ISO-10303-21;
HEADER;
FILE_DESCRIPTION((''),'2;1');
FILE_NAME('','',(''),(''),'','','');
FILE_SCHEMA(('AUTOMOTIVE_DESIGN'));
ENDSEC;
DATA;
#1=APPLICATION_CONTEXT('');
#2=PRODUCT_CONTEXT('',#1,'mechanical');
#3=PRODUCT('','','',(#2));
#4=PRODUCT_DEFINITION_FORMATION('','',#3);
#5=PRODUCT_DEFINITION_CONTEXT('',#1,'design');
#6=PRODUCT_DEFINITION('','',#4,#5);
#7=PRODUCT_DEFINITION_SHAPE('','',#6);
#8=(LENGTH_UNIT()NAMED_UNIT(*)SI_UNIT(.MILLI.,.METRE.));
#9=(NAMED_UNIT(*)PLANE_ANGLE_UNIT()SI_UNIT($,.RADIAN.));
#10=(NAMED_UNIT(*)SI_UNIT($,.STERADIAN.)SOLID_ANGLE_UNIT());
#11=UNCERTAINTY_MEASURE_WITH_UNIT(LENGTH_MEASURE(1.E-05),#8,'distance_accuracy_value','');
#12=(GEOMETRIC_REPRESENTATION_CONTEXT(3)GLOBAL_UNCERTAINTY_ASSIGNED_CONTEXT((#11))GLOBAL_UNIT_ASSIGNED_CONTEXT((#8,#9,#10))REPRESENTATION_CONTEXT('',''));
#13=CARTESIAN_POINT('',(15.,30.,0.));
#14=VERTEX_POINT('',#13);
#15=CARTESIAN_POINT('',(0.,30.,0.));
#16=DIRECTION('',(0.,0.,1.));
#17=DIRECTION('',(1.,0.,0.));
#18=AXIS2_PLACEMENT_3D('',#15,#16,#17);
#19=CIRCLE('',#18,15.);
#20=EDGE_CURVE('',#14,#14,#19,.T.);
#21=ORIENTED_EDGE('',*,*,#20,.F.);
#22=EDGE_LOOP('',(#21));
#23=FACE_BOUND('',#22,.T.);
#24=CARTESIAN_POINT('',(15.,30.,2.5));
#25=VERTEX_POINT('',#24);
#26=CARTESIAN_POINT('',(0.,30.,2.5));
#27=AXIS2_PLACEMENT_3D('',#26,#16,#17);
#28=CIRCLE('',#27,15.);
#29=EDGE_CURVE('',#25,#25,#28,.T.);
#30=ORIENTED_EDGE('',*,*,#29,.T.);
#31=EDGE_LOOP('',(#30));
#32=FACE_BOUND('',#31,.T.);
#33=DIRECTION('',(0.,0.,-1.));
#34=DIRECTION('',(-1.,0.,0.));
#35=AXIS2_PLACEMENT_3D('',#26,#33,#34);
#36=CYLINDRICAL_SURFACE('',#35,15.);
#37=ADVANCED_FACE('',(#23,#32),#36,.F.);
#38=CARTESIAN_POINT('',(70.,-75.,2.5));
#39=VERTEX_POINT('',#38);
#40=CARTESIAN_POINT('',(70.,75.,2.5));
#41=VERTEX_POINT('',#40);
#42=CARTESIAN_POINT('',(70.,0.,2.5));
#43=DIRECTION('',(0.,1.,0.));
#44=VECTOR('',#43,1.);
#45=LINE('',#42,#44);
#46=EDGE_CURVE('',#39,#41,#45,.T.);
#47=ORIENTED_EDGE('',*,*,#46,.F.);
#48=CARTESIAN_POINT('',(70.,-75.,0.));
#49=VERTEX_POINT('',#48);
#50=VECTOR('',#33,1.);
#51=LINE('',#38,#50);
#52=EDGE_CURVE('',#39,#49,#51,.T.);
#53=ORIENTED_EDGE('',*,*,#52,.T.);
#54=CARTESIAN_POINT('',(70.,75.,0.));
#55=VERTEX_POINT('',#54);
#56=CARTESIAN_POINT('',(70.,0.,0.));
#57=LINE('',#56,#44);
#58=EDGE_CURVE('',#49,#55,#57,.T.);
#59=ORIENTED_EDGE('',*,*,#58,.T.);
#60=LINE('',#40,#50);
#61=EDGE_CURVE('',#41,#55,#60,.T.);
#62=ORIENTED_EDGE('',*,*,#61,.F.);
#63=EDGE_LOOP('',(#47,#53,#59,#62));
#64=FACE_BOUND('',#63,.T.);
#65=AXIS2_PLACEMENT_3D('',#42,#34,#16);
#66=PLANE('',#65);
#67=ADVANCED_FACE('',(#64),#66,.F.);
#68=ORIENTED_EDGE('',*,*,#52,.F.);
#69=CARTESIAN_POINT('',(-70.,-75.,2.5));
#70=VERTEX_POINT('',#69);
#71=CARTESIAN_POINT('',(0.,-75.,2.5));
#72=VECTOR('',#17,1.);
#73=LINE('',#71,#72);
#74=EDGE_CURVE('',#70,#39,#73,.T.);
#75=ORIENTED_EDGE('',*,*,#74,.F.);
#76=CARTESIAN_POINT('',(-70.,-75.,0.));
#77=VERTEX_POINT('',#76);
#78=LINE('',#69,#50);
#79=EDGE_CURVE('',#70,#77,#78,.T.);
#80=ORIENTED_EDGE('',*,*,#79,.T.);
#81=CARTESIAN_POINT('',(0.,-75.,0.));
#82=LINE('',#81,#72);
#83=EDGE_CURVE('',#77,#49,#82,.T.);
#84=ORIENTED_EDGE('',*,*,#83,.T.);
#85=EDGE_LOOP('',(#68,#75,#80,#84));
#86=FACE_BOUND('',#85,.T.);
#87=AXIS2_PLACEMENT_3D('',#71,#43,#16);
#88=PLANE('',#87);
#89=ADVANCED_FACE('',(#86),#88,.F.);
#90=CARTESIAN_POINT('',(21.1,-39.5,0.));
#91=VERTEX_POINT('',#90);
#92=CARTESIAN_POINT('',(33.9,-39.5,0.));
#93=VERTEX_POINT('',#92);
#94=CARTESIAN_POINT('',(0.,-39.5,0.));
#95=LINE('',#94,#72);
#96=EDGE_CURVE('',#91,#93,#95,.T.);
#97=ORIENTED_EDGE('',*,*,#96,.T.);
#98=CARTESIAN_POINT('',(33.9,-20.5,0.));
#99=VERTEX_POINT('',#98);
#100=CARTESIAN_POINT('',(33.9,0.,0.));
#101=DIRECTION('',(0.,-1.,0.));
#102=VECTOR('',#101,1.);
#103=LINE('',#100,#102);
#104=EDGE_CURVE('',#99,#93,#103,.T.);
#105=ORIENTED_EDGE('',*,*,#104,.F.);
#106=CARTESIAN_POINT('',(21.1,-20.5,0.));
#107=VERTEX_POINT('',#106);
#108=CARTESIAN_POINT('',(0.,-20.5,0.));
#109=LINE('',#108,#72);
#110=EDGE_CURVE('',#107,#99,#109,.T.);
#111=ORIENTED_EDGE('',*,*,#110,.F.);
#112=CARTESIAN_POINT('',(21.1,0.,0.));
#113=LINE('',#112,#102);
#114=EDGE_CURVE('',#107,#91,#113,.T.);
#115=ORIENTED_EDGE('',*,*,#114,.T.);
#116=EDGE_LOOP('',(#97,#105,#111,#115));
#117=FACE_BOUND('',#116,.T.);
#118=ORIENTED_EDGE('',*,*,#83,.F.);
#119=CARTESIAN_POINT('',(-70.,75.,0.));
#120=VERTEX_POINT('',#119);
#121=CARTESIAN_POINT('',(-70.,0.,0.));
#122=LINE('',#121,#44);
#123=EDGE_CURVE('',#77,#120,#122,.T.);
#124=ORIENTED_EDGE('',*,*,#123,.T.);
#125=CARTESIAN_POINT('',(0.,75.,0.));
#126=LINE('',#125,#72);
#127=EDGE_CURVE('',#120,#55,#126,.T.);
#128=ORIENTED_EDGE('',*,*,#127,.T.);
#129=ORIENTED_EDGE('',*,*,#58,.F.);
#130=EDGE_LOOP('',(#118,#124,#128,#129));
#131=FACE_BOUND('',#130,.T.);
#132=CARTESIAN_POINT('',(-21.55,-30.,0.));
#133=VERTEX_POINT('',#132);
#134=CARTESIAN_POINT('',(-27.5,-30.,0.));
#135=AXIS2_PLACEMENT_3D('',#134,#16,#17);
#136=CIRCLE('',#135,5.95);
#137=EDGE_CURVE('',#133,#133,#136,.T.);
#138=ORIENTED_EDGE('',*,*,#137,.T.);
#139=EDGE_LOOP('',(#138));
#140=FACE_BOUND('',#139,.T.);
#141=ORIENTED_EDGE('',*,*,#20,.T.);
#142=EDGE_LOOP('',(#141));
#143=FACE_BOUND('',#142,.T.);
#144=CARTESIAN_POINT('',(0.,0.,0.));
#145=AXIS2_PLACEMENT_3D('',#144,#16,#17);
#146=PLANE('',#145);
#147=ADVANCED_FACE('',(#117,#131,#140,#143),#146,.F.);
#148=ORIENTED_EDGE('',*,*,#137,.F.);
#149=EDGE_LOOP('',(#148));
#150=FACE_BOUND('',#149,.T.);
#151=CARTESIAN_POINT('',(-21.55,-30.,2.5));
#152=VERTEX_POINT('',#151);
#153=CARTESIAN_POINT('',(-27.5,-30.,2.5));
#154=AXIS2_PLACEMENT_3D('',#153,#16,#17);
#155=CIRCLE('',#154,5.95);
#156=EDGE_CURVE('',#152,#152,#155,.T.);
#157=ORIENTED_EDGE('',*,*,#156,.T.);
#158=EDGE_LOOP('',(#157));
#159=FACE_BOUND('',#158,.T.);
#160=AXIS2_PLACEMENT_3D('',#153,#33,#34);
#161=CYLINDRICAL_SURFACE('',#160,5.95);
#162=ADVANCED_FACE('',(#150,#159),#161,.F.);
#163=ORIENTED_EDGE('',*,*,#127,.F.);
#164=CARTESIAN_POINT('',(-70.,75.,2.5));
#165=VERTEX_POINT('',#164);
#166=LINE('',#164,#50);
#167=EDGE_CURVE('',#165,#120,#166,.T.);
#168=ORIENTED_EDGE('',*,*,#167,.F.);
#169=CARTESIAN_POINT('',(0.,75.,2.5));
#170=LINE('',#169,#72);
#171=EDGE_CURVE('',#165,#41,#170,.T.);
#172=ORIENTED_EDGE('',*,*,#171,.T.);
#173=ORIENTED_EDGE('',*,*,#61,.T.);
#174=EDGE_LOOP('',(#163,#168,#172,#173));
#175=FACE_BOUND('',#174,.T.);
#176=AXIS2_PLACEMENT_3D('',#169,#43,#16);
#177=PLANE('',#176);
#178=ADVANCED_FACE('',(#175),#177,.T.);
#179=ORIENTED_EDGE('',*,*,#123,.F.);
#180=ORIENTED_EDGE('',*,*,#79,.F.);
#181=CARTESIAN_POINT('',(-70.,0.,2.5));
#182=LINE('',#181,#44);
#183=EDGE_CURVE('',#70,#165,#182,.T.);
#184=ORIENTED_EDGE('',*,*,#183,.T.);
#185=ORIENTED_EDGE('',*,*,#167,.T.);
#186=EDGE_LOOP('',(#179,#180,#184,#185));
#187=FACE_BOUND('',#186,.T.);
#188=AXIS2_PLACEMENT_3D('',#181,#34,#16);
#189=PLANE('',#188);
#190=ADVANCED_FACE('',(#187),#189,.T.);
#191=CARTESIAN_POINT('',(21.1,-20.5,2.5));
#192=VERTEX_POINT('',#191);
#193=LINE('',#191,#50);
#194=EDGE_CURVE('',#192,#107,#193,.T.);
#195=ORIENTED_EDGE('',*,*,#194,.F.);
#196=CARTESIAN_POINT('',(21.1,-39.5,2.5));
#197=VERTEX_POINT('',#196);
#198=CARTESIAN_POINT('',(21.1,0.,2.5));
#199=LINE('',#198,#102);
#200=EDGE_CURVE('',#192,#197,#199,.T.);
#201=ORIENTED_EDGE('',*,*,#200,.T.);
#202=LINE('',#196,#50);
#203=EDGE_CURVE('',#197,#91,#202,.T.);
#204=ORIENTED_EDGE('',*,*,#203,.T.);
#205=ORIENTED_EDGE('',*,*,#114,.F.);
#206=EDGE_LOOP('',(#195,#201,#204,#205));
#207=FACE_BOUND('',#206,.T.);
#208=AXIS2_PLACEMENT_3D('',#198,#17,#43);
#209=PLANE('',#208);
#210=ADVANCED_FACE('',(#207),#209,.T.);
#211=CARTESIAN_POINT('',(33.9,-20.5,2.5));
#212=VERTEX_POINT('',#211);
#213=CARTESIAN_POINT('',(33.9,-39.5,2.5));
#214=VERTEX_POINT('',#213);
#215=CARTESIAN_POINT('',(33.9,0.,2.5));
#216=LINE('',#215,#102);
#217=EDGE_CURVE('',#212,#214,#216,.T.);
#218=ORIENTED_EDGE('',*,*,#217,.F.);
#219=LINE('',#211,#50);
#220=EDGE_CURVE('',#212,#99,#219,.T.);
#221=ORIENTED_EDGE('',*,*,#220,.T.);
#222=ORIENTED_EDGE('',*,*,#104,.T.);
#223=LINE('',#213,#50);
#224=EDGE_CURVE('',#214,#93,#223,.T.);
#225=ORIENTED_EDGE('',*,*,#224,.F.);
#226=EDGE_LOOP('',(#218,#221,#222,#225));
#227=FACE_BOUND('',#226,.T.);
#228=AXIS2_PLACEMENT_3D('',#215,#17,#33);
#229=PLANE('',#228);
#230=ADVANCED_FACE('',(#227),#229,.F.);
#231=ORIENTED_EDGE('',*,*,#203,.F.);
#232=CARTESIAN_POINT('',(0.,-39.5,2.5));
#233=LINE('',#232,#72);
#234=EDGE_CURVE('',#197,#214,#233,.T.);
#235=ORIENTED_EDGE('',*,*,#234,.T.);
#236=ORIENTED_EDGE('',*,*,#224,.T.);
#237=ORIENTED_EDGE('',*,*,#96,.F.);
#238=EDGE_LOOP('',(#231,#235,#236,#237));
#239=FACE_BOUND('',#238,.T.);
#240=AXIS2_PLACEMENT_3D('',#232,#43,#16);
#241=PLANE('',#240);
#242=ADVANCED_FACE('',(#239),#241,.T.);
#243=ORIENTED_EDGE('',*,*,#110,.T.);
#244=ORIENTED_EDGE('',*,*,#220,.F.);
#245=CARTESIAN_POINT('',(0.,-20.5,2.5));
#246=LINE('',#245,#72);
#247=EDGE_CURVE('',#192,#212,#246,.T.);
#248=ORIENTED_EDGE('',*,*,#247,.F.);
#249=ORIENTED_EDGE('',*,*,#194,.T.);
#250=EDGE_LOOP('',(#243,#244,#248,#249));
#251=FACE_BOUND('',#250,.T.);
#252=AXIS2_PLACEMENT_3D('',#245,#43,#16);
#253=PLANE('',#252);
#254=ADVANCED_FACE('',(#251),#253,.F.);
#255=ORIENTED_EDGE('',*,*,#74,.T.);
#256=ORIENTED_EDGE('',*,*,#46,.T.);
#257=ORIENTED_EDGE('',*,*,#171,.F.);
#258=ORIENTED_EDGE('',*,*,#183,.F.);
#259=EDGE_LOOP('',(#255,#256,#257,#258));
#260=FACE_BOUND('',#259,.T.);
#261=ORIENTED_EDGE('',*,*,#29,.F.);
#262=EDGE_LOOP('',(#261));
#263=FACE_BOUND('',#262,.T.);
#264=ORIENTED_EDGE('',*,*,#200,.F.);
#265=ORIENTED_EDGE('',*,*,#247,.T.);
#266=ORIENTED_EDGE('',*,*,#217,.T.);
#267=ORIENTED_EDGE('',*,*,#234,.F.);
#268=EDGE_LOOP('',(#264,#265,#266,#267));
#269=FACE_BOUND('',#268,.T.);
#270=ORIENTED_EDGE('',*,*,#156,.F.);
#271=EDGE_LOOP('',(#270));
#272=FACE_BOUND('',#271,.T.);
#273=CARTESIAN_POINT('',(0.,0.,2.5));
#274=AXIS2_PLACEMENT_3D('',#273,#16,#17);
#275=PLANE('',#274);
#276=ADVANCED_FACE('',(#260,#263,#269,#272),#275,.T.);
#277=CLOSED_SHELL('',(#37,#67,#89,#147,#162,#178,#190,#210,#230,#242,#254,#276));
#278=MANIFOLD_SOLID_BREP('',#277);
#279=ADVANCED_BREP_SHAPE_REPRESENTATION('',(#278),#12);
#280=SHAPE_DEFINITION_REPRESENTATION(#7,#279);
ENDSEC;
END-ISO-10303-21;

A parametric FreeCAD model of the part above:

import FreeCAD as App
import Part
import Sketcher

doc = App.newDocument("Part")
params = doc.addObject("Spreadsheet::Sheet", "Params")
for row, (alias, value) in enumerate([
    ("sketch1_diameter", "30 mm"),
    ("sketch1_diameter2", "11.9 mm"),
    ("sketch1_width", "140 mm"),
    ("sketch1_height", "150 mm"),
    ("sketch1_height2", "19 mm"),
    ("pad1_length", "2.5 mm"),
], start=1):
    params.set(f"A{row}", alias)
    params.set(f"B{row}", "=" + value)
    params.setAlias(f"B{row}", alias)

body = doc.addObject("PartDesign::Body", "Body")

sketch1 = body.newObject("Sketcher::SketchObject", "Sketch")
sketch1.AttachmentSupport = (doc.getObject("XY_Plane"), [""])
sketch1.MapMode = "FlatFace"
sketch1.addGeometry(Part.LineSegment(App.Vector(-70, 75, 0), App.Vector(-70, -75, 0)), False)
sketch1.addGeometry(Part.LineSegment(App.Vector(-70, -75, 0), App.Vector(70, -75, 0)), False)
sketch1.addGeometry(Part.LineSegment(App.Vector(70, -75, 0), App.Vector(70, 75, 0)), False)
sketch1.addGeometry(Part.LineSegment(App.Vector(70, 75, 0), App.Vector(-70, 75, 0)), False)
sketch1.addGeometry(Part.Circle(App.Vector(-28, -30, 0), App.Vector(0, 0, 1), 6), False)
sketch1.addGeometry(Part.LineSegment(App.Vector(34, -40, 0), App.Vector(21, -40, 0)), False)
sketch1.addGeometry(Part.LineSegment(App.Vector(21, -40, 0), App.Vector(21, -20, 0)), False)
sketch1.addGeometry(Part.LineSegment(App.Vector(21, -20, 0), App.Vector(34, -20, 0)), False)
sketch1.addGeometry(Part.LineSegment(App.Vector(34, -20, 0), App.Vector(34, -40, 0)), False)
sketch1.addGeometry(Part.Circle(App.Vector(0, 30, 0), App.Vector(0, 0, 1), 15), False)
sketch1.addConstraint(Sketcher.Constraint("Coincident", 0, 2, 1, 1))
sketch1.addConstraint(Sketcher.Constraint("Coincident", 1, 2, 2, 1))
sketch1.addConstraint(Sketcher.Constraint("Coincident", 2, 2, 3, 1))
sketch1.addConstraint(Sketcher.Constraint("Coincident", 3, 2, 0, 1))
sketch1.addConstraint(Sketcher.Constraint("Coincident", 5, 2, 6, 1))
sketch1.addConstraint(Sketcher.Constraint("Coincident", 6, 2, 7, 1))
sketch1.addConstraint(Sketcher.Constraint("Coincident", 7, 2, 8, 1))
sketch1.addConstraint(Sketcher.Constraint("Coincident", 8, 2, 5, 1))
sketch1.addConstraint(Sketcher.Constraint("Vertical", 0))
sketch1.addConstraint(Sketcher.Constraint("Horizontal", 1))
sketch1.addConstraint(Sketcher.Constraint("Vertical", 2))
sketch1.addConstraint(Sketcher.Constraint("Horizontal", 3))
sketch1.addConstraint(Sketcher.Constraint("Horizontal", 5))
sketch1.addConstraint(Sketcher.Constraint("Vertical", 6))
sketch1.addConstraint(Sketcher.Constraint("Horizontal", 7))
sketch1.addConstraint(Sketcher.Constraint("Vertical", 8))
sketch1.addConstraint(Sketcher.Constraint("Symmetric", 0, 2, 2, 2, -1, 1))
sketch1.addConstraint(Sketcher.Constraint("PointOnObject", 9, 3, -2))
sketch1.addConstraint(Sketcher.Constraint("Diameter", 9, 30.0))
sketch1.addConstraint(Sketcher.Constraint("Diameter", 4, 11.9))
sketch1.addConstraint(Sketcher.Constraint("DistanceX", 1, 1, 1, 2, 140.0))
sketch1.addConstraint(Sketcher.Constraint("DistanceY", 0, 2, 0, 1, 150.0))
sketch1.addConstraint(Sketcher.Constraint("DistanceY", 6, 1, 6, 2, 19.0))
sketch1.addConstraint(Sketcher.Constraint("DistanceX", 5, 2, 5, 1, 12.8))
sketch1.addConstraint(Sketcher.Constraint("DistanceY", 4, 3, -1, 1, 30.0))
sketch1.addConstraint(Sketcher.Constraint("DistanceY", -1, 1, 9, 3, 30.0))
sketch1.addConstraint(Sketcher.Constraint("DistanceX", 4, 3, -1, 1, 27.5))
sketch1.addConstraint(Sketcher.Constraint("DistanceX", -1, 1, 5, 2, 21.1))
sketch1.addConstraint(Sketcher.Constraint("DistanceY", 5, 2, -1, 1, 39.5))
sketch1.setExpression("Constraints[18]", "Params.sketch1_diameter")
sketch1.setExpression("Constraints[19]", "Params.sketch1_diameter2")
sketch1.setExpression("Constraints[20]", "Params.sketch1_width")
sketch1.setExpression("Constraints[21]", "Params.sketch1_height")
sketch1.setExpression("Constraints[22]", "Params.sketch1_height2")
pad1 = body.newObject("PartDesign::Pad", "Pad")
pad1.Profile = sketch1
pad1.setExpression("Length", "Params.pad1_length")

doc.recompute()
